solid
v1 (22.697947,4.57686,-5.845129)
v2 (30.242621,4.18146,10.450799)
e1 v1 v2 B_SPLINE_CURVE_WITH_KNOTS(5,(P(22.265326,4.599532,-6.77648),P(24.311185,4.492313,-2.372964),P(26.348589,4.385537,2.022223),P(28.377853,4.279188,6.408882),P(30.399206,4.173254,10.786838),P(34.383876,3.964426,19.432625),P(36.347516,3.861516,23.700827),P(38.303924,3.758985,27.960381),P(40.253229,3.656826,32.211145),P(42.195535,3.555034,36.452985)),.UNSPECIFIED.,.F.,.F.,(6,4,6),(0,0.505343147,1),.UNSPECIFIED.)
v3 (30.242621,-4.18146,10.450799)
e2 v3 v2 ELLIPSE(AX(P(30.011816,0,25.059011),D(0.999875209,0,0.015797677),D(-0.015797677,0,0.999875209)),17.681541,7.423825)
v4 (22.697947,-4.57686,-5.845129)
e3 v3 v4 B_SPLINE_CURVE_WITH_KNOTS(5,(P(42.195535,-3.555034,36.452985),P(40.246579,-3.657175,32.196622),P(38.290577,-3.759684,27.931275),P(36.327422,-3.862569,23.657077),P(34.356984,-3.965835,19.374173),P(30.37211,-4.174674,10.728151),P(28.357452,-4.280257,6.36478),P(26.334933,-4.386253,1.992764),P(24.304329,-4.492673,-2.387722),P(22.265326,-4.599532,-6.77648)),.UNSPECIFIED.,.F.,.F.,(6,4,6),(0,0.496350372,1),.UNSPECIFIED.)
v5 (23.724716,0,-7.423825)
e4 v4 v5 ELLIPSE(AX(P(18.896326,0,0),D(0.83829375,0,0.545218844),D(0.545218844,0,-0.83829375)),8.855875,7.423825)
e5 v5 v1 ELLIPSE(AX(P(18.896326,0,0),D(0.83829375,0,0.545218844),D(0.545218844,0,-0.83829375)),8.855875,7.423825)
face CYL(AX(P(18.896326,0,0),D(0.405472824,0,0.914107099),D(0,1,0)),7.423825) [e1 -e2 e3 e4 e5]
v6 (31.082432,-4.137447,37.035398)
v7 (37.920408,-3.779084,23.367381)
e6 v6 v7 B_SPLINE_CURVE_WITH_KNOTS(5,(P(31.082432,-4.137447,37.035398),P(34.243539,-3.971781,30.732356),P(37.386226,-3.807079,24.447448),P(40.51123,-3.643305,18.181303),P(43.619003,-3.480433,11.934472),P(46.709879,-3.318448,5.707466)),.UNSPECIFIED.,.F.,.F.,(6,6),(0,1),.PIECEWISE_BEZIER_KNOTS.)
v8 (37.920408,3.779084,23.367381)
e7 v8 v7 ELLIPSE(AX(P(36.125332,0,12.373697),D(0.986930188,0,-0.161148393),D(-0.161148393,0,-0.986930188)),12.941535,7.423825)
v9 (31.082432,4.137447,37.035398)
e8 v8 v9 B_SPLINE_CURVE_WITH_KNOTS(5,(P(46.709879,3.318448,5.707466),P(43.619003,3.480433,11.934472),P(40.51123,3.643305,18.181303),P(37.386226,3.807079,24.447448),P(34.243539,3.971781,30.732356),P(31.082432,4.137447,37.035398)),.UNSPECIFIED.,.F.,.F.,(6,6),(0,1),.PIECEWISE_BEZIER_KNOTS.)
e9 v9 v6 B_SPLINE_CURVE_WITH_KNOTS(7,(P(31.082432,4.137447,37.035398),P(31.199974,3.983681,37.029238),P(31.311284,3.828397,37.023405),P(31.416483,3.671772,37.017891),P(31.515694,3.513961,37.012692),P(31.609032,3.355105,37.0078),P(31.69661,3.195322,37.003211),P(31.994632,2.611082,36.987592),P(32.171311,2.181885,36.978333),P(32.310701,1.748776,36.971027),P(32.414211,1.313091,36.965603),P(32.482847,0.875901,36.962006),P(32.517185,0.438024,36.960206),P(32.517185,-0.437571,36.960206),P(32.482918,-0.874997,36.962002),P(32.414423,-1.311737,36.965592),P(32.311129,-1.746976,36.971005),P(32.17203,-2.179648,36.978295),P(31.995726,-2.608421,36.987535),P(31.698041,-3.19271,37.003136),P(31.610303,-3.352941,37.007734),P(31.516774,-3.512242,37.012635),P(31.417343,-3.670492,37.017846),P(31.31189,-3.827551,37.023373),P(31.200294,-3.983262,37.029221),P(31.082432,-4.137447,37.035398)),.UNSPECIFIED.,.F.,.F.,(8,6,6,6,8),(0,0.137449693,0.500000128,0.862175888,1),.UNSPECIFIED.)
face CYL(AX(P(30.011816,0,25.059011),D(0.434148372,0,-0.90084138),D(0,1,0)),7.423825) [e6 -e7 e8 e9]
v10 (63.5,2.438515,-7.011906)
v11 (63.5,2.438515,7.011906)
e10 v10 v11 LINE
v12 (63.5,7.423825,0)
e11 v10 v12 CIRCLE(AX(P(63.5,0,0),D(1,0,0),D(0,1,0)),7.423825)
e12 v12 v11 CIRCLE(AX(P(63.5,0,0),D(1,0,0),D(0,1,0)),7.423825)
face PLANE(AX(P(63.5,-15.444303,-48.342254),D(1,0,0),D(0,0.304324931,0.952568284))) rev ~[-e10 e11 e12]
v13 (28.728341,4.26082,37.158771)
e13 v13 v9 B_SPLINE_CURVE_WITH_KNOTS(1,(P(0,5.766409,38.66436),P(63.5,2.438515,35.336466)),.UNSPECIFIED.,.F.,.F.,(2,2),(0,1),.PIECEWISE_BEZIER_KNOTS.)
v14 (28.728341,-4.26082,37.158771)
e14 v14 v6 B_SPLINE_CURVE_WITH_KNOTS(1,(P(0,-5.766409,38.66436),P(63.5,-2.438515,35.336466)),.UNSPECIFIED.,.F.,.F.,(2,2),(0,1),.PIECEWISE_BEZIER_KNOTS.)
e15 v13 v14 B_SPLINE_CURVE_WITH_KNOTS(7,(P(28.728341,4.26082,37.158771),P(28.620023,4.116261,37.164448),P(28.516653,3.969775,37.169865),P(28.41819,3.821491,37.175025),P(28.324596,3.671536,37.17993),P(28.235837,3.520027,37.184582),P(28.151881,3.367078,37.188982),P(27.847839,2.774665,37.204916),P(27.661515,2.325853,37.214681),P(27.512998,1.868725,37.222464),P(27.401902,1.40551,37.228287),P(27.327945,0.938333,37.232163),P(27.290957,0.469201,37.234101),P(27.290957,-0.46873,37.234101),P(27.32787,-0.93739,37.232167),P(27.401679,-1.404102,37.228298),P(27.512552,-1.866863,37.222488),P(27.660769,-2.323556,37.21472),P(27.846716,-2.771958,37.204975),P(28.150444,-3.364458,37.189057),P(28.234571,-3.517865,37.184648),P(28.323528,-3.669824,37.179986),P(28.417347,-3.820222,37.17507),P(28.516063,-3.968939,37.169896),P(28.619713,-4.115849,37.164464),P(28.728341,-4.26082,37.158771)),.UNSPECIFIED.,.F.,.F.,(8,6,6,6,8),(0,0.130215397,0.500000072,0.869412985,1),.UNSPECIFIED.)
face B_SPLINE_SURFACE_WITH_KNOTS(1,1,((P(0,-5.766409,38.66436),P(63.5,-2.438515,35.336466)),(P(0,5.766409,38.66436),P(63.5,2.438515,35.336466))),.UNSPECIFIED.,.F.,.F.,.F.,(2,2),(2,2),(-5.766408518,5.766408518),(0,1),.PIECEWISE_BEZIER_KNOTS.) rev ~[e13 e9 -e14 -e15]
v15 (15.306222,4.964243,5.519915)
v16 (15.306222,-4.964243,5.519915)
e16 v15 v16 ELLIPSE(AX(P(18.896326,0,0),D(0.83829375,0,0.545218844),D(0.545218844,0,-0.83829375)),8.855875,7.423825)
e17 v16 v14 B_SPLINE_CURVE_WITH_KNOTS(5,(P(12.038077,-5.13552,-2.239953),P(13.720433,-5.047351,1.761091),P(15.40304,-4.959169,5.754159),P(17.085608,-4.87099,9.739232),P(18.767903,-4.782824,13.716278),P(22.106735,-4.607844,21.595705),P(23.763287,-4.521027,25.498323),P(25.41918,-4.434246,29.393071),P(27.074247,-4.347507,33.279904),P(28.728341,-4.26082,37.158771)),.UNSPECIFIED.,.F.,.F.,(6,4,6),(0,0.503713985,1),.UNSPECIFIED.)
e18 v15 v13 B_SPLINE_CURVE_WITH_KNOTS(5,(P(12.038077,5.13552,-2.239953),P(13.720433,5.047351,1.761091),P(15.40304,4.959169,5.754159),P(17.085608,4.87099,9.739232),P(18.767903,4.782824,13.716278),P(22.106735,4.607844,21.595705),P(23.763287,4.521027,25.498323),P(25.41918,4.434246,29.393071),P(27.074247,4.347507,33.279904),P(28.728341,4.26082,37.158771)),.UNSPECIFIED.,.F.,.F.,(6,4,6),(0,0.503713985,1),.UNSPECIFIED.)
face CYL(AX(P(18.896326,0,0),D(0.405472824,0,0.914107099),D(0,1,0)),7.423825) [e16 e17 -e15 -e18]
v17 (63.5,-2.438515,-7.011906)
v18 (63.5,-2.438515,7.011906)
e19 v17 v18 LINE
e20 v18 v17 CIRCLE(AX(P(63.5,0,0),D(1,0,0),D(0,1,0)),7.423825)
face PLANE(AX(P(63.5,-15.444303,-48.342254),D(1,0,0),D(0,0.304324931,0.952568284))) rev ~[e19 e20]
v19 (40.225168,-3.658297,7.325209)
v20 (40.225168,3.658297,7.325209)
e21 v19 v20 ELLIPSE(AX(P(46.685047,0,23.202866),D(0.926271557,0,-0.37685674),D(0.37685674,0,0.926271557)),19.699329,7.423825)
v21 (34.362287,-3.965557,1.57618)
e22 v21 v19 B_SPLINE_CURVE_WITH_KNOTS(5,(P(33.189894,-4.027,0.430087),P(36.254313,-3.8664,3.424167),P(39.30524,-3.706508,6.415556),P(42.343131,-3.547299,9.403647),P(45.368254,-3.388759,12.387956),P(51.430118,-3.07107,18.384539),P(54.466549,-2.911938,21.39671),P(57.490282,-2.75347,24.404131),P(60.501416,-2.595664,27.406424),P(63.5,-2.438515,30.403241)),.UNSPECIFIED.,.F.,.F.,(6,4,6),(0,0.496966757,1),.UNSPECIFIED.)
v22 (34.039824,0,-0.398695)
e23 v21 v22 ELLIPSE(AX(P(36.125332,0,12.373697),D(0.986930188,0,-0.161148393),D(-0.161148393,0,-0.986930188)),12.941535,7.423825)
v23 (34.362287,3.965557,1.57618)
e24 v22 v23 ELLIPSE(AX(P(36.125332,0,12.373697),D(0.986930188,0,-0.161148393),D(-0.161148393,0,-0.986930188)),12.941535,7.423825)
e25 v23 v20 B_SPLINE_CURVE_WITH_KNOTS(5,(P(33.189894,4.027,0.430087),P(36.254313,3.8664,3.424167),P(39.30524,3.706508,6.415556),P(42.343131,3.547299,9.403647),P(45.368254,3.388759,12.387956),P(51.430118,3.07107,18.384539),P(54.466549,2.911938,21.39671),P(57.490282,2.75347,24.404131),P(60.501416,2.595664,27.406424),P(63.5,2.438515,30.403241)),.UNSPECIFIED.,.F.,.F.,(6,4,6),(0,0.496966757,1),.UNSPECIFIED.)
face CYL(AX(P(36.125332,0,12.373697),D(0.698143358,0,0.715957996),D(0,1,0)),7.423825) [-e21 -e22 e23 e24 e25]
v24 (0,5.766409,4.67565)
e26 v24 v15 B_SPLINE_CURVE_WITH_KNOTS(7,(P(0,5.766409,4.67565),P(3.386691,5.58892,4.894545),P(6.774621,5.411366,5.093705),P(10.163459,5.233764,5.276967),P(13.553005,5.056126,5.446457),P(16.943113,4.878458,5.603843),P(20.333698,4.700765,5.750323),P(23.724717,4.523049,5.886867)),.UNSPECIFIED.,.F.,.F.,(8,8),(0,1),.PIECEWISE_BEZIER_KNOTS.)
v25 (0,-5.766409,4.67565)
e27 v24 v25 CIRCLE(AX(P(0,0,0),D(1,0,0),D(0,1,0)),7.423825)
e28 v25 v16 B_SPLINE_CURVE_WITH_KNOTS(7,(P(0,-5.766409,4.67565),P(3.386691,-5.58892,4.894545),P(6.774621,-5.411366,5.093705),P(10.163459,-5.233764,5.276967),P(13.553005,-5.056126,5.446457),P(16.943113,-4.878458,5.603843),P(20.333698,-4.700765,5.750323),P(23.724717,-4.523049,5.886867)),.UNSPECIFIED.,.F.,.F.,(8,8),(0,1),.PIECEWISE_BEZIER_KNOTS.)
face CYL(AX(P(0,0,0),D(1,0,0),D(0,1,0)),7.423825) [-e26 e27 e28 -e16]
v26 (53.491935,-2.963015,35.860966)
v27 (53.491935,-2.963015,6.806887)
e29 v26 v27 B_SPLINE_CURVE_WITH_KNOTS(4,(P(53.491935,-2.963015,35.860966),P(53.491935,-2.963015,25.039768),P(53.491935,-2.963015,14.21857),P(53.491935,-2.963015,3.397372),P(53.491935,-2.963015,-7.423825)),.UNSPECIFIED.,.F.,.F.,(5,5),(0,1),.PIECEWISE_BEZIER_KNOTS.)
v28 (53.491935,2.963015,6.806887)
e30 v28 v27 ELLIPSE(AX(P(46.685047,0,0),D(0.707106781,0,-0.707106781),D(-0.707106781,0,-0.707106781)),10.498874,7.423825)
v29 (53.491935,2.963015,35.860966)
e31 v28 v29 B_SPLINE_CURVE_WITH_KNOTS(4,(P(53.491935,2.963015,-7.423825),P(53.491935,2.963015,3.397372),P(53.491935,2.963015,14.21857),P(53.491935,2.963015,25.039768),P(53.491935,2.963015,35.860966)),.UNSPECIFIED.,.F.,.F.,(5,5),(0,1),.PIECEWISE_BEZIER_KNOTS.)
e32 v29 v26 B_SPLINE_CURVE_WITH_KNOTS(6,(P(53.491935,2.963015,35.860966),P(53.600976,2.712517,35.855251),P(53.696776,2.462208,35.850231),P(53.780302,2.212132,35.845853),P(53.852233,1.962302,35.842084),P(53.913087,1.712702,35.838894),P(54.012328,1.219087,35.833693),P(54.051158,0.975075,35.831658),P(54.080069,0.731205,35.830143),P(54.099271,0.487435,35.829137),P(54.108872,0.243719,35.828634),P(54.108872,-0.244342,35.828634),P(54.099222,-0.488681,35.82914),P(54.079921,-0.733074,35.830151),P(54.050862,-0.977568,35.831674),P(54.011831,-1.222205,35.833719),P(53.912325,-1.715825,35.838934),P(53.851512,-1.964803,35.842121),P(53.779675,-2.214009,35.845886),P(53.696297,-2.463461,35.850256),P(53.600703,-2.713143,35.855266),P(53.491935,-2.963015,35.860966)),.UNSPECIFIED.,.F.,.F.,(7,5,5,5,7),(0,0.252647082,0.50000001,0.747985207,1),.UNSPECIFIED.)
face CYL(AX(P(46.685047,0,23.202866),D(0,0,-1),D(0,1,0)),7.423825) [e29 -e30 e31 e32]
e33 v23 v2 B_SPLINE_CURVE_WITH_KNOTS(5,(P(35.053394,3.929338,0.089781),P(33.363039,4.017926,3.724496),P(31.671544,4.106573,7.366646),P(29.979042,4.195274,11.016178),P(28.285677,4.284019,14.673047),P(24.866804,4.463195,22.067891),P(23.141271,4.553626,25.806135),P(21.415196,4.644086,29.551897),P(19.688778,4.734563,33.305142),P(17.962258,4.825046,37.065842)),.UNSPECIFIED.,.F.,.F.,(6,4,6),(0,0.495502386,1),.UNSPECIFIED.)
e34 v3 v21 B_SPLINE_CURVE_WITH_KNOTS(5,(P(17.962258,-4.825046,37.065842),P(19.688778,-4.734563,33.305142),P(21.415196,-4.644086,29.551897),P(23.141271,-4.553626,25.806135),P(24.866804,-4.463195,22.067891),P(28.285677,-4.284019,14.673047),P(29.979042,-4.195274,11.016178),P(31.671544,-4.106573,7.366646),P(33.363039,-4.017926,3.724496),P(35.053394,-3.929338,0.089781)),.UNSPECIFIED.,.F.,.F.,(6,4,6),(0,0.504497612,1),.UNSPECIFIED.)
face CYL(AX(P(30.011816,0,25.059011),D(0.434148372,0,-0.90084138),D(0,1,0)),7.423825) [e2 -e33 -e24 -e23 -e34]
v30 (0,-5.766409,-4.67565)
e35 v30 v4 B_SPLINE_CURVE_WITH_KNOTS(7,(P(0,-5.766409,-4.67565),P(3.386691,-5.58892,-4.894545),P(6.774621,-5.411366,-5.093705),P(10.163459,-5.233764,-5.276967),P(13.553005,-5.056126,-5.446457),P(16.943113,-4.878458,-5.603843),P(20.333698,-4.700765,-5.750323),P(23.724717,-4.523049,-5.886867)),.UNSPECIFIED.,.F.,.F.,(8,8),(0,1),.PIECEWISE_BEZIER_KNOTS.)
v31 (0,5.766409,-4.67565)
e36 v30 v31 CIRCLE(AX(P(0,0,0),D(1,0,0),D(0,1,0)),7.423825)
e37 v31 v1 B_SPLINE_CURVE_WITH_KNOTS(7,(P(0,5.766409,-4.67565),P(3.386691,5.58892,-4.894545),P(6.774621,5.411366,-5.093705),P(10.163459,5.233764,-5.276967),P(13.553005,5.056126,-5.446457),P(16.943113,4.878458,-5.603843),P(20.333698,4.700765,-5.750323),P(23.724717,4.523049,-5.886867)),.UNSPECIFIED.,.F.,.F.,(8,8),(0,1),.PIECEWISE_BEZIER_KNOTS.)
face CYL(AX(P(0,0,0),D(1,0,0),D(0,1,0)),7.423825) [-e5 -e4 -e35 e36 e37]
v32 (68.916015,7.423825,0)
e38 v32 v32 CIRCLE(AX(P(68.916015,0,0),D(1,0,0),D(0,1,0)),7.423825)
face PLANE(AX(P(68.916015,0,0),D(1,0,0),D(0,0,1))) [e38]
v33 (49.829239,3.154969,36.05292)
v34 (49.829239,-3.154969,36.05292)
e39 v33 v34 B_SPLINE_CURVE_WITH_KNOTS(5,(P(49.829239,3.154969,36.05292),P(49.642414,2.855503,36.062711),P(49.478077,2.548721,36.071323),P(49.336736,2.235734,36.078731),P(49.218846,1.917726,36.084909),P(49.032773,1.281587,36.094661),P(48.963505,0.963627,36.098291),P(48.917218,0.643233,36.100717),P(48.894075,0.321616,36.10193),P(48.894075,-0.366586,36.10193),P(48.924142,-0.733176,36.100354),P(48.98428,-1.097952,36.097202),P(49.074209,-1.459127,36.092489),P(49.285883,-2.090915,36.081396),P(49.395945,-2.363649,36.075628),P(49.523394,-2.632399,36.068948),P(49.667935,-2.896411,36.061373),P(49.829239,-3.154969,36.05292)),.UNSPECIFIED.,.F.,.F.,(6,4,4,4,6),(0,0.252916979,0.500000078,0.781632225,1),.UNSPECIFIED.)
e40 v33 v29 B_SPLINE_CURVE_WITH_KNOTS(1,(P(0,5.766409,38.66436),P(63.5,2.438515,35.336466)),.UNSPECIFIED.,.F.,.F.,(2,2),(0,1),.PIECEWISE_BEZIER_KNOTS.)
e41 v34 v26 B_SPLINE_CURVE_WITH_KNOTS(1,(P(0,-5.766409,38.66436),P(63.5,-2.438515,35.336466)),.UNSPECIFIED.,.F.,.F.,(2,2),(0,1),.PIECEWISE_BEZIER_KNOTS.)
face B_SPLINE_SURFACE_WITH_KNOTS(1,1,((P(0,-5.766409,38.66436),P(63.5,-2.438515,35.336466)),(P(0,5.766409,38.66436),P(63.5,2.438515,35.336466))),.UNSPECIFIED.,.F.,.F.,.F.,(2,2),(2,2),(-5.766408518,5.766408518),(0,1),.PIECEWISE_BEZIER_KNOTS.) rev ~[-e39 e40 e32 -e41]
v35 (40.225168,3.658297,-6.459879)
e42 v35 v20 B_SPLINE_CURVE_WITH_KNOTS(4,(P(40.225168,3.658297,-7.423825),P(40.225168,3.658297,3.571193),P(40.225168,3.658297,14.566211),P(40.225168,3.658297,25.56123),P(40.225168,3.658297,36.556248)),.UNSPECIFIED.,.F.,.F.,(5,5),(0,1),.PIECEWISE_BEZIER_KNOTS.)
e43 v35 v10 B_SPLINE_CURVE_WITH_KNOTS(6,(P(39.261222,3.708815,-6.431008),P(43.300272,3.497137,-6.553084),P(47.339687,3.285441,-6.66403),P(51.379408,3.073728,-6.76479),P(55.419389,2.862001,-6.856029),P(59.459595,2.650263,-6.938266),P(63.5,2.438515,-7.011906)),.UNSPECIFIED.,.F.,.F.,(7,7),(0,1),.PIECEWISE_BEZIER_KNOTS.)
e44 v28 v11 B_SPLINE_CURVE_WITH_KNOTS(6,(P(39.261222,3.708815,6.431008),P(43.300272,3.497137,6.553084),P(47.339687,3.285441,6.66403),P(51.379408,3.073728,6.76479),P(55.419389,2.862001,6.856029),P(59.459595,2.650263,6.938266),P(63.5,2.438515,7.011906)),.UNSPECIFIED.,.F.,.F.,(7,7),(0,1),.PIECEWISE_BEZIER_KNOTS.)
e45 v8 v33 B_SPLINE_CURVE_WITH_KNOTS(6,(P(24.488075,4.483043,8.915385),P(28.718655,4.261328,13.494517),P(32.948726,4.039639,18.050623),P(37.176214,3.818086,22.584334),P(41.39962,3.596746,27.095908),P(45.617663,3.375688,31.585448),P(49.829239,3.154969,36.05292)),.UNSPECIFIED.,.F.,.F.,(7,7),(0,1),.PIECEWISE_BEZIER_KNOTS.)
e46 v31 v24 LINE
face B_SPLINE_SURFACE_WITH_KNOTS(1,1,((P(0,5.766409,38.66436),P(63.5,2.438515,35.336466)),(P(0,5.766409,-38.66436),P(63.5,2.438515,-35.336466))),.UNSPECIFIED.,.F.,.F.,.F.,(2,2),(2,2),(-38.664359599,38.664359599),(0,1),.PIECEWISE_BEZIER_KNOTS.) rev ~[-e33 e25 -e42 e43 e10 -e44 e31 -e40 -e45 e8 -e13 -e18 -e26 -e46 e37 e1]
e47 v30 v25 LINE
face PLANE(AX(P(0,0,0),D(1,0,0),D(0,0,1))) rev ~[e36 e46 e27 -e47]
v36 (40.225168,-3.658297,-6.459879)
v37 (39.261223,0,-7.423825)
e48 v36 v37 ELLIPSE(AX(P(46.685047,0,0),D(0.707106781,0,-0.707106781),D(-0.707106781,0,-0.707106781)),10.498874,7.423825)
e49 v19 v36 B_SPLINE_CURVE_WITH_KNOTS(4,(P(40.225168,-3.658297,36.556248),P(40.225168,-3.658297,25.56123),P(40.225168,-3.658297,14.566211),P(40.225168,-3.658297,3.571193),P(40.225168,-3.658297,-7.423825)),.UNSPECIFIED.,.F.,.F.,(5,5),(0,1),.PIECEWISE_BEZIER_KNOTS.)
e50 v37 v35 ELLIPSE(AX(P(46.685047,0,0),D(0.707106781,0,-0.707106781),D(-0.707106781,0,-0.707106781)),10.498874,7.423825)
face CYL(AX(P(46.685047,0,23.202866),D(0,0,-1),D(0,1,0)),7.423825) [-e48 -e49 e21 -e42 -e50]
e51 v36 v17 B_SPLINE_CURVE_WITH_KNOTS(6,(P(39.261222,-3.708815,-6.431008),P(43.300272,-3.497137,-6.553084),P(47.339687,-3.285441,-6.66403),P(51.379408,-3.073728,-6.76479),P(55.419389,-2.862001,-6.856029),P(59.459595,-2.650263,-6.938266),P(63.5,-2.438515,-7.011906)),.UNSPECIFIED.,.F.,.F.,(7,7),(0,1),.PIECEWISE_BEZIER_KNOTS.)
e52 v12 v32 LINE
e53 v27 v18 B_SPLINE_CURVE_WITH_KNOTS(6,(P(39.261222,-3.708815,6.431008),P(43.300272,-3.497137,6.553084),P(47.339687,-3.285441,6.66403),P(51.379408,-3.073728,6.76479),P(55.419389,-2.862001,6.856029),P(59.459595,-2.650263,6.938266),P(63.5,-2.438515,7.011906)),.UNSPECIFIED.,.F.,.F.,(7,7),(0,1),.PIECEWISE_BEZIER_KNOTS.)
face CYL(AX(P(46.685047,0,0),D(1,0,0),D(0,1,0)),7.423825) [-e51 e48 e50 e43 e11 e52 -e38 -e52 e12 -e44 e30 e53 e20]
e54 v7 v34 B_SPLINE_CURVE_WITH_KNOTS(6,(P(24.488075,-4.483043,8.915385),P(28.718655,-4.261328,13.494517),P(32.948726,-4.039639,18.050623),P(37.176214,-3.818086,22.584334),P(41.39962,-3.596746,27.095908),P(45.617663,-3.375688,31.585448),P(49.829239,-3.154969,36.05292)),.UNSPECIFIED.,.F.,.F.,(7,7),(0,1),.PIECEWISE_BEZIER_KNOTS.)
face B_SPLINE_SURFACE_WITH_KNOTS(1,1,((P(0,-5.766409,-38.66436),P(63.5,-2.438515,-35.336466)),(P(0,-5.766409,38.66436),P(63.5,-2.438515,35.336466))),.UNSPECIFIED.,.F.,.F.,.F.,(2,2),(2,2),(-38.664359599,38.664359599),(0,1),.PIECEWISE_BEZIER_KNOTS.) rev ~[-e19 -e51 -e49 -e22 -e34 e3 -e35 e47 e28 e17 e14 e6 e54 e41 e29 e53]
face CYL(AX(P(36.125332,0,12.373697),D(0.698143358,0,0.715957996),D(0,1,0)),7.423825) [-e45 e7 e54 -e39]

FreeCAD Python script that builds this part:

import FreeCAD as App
import Part
import Sketcher

V = App.Vector
Q = App.Units.Quantity


def add_polygon(sketch, points):
    """Adds a closed chain of lines whose ends are joined by coincident constraints."""
    first, n = sketch.GeometryCount, len(points)
    for a, b in zip(points, points[1:] + points[:1]):
        sketch.addGeometry(Part.LineSegment(App.Vector(*a, 0), App.Vector(*b, 0)), False)
    for i in range(n):
        sketch.addConstraint(Sketcher.Constraint("Coincident", first + i, 2, first + (i + 1) % n, 1))

doc = App.newDocument("Part")
body = doc.addObject("PartDesign::Body", "Body")

# Sketch on YZ plane
sketch1 = doc.addObject("Sketcher::SketchObject", "Sketch")
body.addObject(sketch1)
sketch1.AttachmentSupport = (doc.YZ_Plane, [""])
sketch1.MapMode = "FlatFace"
sketch1.addGeometry(Part.Circle(V(0, 0, 0), V(0, 0, 1), 7), False)
sketch1.addConstraint(Sketcher.Constraint("Coincident", 0, 3, -1, 1))
sketch1.addConstraint(Sketcher.Constraint("Diameter", 0, 14.84765))

# Sketch on XZ plane
sketch2 = doc.addObject("Sketcher::SketchObject", "Sketch001")
body.addObject(sketch2)
sketch2.AttachmentSupport = (doc.XZ_Plane, [""])
sketch2.MapMode = "FlatFace"
sketch2.addGeometry(Part.LineSegment(V(0, 0, 0), V(19, 0, 0)), False)
sketch2.addGeometry(Part.LineSegment(V(19, 0, 0), V(30, 25, 0)), False)
sketch2.addGeometry(Part.LineSegment(V(30, 25, 0), V(36, 12, 0)), False)
sketch2.addGeometry(Part.LineSegment(V(36, 12, 0), V(47, 23, 0)), False)
sketch2.addGeometry(Part.LineSegment(V(47, 23, 0), V(47, 0, 0)), False)
sketch2.addGeometry(Part.LineSegment(V(47, 0, 0), V(69, 0, 0)), False)
sketch2.addConstraint(Sketcher.Constraint("Coincident", 0, 2, 1, 1))
sketch2.addConstraint(Sketcher.Constraint("Coincident", 1, 2, 2, 1))
sketch2.addConstraint(Sketcher.Constraint("Coincident", 2, 2, 3, 1))
sketch2.addConstraint(Sketcher.Constraint("Coincident", 3, 2, 4, 1))
sketch2.addConstraint(Sketcher.Constraint("Coincident", 4, 2, 5, 1))
sketch2.addConstraint(Sketcher.Constraint("Horizontal", 0))
sketch2.addConstraint(Sketcher.Constraint("Vertical", 4))
sketch2.addConstraint(Sketcher.Constraint("Horizontal", 5))
sketch2.addConstraint(Sketcher.Constraint("Coincident", 0, 1, -1, 1))
sketch2.addConstraint(Sketcher.Constraint("PointOnObject", 4, 2, -1))
sketch2.addConstraint(Sketcher.Constraint("DistanceX", 1, 2, 5, 2, 38.904199))
sketch2.addConstraint(Sketcher.Constraint("Distance", 1, 27.413649))
sketch2.addConstraint(Sketcher.Constraint("Distance", 2, 14.081629))
sketch2.addConstraint(Sketcher.Constraint("DistanceX", 0, 1, 0, 2, 18.896326))
sketch2.addConstraint(Sketcher.Constraint("DistanceX", 5, 1, 5, 2, 22.230968))
sketch2.addConstraint(Sketcher.Constraint("DistanceY", 4, 2, 4, 1, 23.202866))
sketch2.addConstraint(Sketcher.Constraint("DistanceY", -1, 1, 1, 2, 25.059011))
sketch2.addConstraint(Sketcher.Constraint("DistanceY", 2, 2, 3, 2, 10.829169))
doc.recompute()

additivepipe = doc.addObject("PartDesign::AdditivePipe", "AdditivePipe")
body.addObject(additivepipe)
additivepipe.Profile = sketch1
additivepipe.Spine = (sketch2, ["Edge1", "Edge2", "Edge3", "Edge4", "Edge5", "Edge6"])
additivepipe.Transition = "Right corner"

# Sketch on YZ plane
sketch3 = doc.addObject("Sketcher::SketchObject", "Sketch002")
body.addObject(sketch3)
sketch3.AttachmentSupport = (doc.YZ_Plane, [""])
sketch3.MapMode = "FlatFace"
add_polygon(sketch3, [(-12, 45), (-12, -45), (12, -45), (12, 45)])  # lines 0-3
add_polygon(sketch3, [(6, -39), (-6, -39), (-6, 39), (6, 39)])  # lines 4-7
sketch3.addConstraint(Sketcher.Constraint("Vertical", 0))
sketch3.addConstraint(Sketcher.Constraint("Horizontal", 1))
sketch3.addConstraint(Sketcher.Constraint("Vertical", 2))
sketch3.addConstraint(Sketcher.Constraint("Horizontal", 3))
sketch3.addConstraint(Sketcher.Constraint("Horizontal", 4))
sketch3.addConstraint(Sketcher.Constraint("Vertical", 5))
sketch3.addConstraint(Sketcher.Constraint("Horizontal", 6))
sketch3.addConstraint(Sketcher.Constraint("Vertical", 7))
sketch3.addConstraint(Sketcher.Constraint("Symmetric", 0, 2, 2, 2, -1, 1))
sketch3.addConstraint(Sketcher.Constraint("Symmetric", 4, 2, 6, 2, -1, 1))
sketch3.addConstraint(Sketcher.Constraint("DistanceX", 0, 2, 4, 2, Q("0.25 in")))
sketch3.addConstraint(Sketcher.Constraint("DistanceY", 0, 2, 4, 2, Q("0.25 in")))
sketch3.addConstraint(Sketcher.Constraint("DistanceY", 0, 2, 0, 1, 90.02872))
sketch3.addConstraint(Sketcher.Constraint("DistanceX", 1, 1, 1, 2, 24.232818))
pocket1 = doc.addObject("PartDesign::Pocket", "Pocket")
body.addObject(pocket1)
pocket1.Profile = sketch3
pocket1.Length = Q("5 in")
pocket1.Midplane = True
pocket1.TaperAngle = -3

doc.recompute()
